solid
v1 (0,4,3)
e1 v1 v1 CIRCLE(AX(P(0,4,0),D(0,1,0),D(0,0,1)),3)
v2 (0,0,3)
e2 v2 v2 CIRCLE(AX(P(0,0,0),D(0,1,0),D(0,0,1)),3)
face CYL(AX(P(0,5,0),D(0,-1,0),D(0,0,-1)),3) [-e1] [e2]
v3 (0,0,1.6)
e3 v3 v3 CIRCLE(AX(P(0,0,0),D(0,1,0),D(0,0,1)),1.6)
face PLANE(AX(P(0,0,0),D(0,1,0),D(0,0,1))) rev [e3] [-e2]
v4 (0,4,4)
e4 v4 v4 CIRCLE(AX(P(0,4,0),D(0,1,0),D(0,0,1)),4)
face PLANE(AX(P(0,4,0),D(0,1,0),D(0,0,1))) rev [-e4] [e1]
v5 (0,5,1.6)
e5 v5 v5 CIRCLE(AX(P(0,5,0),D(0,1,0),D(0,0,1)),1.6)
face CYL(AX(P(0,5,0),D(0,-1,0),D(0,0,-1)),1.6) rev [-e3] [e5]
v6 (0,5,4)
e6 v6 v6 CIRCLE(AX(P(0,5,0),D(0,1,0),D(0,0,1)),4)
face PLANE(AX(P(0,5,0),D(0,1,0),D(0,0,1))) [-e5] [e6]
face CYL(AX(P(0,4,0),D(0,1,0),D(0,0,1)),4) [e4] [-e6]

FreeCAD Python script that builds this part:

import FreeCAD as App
import Part
import Sketcher

doc = App.newDocument("Part")
body = doc.addObject("PartDesign::Body", "Body")

# Sketch on XZ plane
sketch1 = body.newObject("Sketcher::SketchObject", "Sketch")
sketch1.AttachmentSupport = (doc.getObject("XZ_Plane"), [""])
sketch1.MapMode = "FlatFace"
sketch1.addGeometry([
    Part.Circle(App.Vector(0, 0, 0), App.Vector(0, 0, 1), 3),
    Part.Circle(App.Vector(0, 0, 0), App.Vector(0, 0, 1), 1.6),
], False)
sketch1.addConstraint([
    Sketcher.Constraint("Coincident", 0, 3, -1, 1),
    Sketcher.Constraint("Coincident", 1, 3, -1, 1),
    Sketcher.Constraint("Diameter", 0, 6.0),
    Sketcher.Constraint("Diameter", 1, 3.2),
])
pad1 = body.newObject("PartDesign::Pad", "Pad")
pad1.Profile = sketch1
pad1.Length = 5
pad1.Reversed = True

# Sketch on XZ plane
sketch2 = body.newObject("Sketcher::SketchObject", "Sketch001")
sketch2.AttachmentSupport = (doc.getObject("XZ_Plane"), [""])
sketch2.MapMode = "FlatFace"
sketch2.AttachmentOffset = App.Placement(App.Vector(0, 0, -4), App.Rotation())
sketch2.addGeometry([
    Part.Circle(App.Vector(0, 0, 0), App.Vector(0, 0, 1), 4),
    Part.Circle(App.Vector(0, 0, 0), App.Vector(0, 0, 1), 3),
], False)
sketch2.addConstraint([
    Sketcher.Constraint("Coincident", 0, 3, -1, 1),
    Sketcher.Constraint("Coincident", 1, 3, -1, 1),
    Sketcher.Constraint("Diameter", 0, 8.0),
    Sketcher.Constraint("Diameter", 1, 6.0),
])
pad2 = body.newObject("PartDesign::Pad", "Pad001")
pad2.Profile = sketch2
pad2.Length = 1
pad2.Reversed = True

doc.recompute()
